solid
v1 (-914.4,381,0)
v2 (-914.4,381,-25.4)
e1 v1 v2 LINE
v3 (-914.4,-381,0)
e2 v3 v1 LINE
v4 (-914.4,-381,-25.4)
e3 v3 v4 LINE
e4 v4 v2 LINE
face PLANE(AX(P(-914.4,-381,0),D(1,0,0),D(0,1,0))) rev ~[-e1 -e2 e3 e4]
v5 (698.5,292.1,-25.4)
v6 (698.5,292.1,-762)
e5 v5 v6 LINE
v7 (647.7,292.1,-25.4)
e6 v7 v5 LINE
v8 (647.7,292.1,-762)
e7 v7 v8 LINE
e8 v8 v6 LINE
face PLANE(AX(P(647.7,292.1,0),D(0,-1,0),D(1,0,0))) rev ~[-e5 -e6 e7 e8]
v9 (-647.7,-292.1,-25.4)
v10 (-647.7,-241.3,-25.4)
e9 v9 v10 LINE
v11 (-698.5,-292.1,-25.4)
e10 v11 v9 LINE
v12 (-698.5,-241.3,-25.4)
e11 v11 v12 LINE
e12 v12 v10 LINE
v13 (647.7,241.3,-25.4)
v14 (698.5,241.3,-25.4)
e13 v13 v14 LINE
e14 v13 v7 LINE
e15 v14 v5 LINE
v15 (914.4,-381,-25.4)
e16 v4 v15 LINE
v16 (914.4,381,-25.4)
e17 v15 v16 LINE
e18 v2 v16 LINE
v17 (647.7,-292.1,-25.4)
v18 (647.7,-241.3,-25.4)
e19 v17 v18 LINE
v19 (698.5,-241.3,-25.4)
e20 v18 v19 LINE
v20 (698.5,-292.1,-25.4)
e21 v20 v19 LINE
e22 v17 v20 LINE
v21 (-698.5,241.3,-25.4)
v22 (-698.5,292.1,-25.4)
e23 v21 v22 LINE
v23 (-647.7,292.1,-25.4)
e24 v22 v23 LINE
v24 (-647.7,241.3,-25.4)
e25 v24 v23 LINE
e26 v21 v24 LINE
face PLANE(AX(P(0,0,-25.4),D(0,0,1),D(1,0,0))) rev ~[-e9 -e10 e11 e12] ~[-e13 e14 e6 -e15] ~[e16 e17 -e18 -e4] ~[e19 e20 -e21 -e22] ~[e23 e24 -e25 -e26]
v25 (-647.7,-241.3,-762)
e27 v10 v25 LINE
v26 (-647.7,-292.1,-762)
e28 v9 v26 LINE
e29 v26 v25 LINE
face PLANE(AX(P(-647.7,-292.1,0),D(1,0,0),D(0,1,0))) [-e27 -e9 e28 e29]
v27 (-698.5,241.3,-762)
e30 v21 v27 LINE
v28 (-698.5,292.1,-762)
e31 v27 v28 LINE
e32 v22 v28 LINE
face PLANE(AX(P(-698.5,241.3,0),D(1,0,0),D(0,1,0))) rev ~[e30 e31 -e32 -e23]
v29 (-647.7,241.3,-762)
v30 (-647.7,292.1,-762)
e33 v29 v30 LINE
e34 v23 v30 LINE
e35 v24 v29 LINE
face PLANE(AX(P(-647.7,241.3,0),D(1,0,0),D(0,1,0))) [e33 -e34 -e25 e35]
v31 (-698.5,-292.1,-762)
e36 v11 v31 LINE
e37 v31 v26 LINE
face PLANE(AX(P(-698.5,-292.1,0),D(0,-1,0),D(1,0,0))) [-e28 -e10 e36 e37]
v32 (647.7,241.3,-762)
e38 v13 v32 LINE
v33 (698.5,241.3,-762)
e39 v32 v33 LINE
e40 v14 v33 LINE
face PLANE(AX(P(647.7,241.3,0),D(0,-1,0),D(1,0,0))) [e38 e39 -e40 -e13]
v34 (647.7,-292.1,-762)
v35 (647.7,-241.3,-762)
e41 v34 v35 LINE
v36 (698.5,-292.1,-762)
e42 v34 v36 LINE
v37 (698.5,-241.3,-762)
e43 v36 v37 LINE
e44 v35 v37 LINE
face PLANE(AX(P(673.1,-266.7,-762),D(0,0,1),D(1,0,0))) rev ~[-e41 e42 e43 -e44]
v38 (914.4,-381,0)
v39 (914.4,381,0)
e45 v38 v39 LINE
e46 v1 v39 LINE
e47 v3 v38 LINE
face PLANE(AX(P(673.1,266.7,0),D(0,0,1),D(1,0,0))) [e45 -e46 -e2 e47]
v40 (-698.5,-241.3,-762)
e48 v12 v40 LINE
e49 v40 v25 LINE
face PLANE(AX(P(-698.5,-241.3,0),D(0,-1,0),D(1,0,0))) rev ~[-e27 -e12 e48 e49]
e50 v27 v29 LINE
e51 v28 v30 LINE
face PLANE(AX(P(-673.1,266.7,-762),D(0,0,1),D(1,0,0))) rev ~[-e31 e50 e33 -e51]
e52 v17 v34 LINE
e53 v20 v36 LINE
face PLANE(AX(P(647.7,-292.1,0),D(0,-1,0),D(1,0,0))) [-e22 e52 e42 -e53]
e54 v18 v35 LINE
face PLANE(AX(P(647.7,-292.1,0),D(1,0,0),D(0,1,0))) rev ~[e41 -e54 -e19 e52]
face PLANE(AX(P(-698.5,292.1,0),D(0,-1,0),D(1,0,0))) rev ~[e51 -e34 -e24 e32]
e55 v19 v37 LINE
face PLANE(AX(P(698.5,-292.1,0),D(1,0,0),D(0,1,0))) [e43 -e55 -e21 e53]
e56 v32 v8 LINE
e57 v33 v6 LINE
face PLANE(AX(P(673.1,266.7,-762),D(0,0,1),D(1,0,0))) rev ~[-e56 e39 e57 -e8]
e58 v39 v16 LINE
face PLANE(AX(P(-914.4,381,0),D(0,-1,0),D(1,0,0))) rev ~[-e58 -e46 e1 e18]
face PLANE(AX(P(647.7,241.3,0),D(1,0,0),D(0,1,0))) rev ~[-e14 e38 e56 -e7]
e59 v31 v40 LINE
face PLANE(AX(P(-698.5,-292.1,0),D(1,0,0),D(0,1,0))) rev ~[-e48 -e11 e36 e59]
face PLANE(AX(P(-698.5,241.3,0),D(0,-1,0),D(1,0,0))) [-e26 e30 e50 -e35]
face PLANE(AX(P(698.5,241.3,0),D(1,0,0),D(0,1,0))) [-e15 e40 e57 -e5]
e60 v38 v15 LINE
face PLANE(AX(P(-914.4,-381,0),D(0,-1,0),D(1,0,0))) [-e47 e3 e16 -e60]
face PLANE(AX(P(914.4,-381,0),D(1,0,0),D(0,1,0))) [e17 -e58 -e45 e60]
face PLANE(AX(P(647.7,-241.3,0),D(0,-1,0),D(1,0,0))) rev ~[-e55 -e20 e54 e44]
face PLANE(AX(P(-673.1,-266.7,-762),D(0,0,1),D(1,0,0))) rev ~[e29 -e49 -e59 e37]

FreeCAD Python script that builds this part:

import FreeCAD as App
import Part
import Sketcher
Q = App.Units.Quantity


def add_polygon(sketch, points):
    """Adds a closed chain of lines whose ends are joined by coincident constraints."""
    first, n = sketch.GeometryCount, len(points)
    for a, b in zip(points, points[1:] + points[:1]):
        sketch.addGeometry(Part.LineSegment(App.Vector(*a, 0), App.Vector(*b, 0)), False)
    for i in range(n):
        sketch.addConstraint(Sketcher.Constraint("Coincident", first + i, 2, first + (i + 1) % n, 1))

doc = App.newDocument("Part")
params = doc.addObject("Spreadsheet::Sheet", "Params")
for row, (alias, value) in enumerate([
    ("sketch1_width", "72 in"),
    ("sketch1_height", "30 in"),
    ("pad1_length", "1 in"),
    ("sketch2_width", "2 in"),
    ("pad2_length", "30 in"),
], start=1):
    params.set(f"A{row}", alias)
    params.set(f"B{row}", "=" + value)
    params.setAlias(f"B{row}", alias)

body = doc.addObject("PartDesign::Body", "Body")

# Sketch on XY plane
sketch1 = doc.addObject("Sketcher::SketchObject", "Sketch")
body.addObject(sketch1)
sketch1.AttachmentSupport = (doc.XY_Plane, [""])
sketch1.MapMode = "FlatFace"
add_polygon(sketch1, [(-914.4, 381), (-914.4, -381), (914.4, -381), (914.4, 381)])  # lines 0-3
sketch1.addConstraint([
    Sketcher.Constraint("Vertical", 0),
    Sketcher.Constraint("Horizontal", 1),
    Sketcher.Constraint("Vertical", 2),
    Sketcher.Constraint("Horizontal", 3),
    Sketcher.Constraint("Symmetric", 0, 2, 2, 2, -1, 1),
    Sketcher.Constraint("DistanceX", 1, 1, 1, 2, Q("72 in")),
    Sketcher.Constraint("DistanceY", 0, 2, 0, 1, Q("30 in")),
])
sketch1.setExpression("Constraints[9]", "Params.sketch1_width")
sketch1.setExpression("Constraints[10]", "Params.sketch1_height")
pad1 = doc.addObject("PartDesign::Pad", "Pad")
body.addObject(pad1)
pad1.Profile = sketch1
pad1.setExpression("Length", "Params.pad1_length")
pad1.Reversed = True

# Sketch on XY plane
sketch2 = doc.addObject("Sketcher::SketchObject", "Sketch001")
body.addObject(sketch2)
sketch2.AttachmentSupport = (doc.XY_Plane, [""])
sketch2.MapMode = "FlatFace"
add_polygon(sketch2, [(647.7, 292.1), (647.7, 241.3), (698.5, 241.3), (698.5, 292.1)])  # lines 0-3
add_polygon(sketch2, [(647.7, -241.3), (647.7, -292.1), (698.5, -292.1), (698.5, -241.3)])  # lines 4-7
add_polygon(sketch2, [(-698.5, -241.3), (-698.5, -292.1), (-647.7, -292.1), (-647.7, -241.3)])  # lines 8-11
add_polygon(sketch2, [(-698.5, 292.1), (-698.5, 241.3), (-647.7, 241.3), (-647.7, 292.1)])  # lines 12-15
sketch2.addConstraint([
    Sketcher.Constraint("Vertical", 0),
    Sketcher.Constraint("Horizontal", 1),
    Sketcher.Constraint("Vertical", 2),
    Sketcher.Constraint("Horizontal", 3),
    Sketcher.Constraint("Vertical", 4),
    Sketcher.Constraint("Horizontal", 5),
    Sketcher.Constraint("Vertical", 6),
    Sketcher.Constraint("Horizontal", 7),
    Sketcher.Constraint("Vertical", 8),
    Sketcher.Constraint("Horizontal", 9),
    Sketcher.Constraint("Vertical", 10),
    Sketcher.Constraint("Horizontal", 11),
    Sketcher.Constraint("Vertical", 12),
    Sketcher.Constraint("Horizontal", 13),
    Sketcher.Constraint("Vertical", 14),
    Sketcher.Constraint("Horizontal", 15),
    Sketcher.Constraint("Symmetric", 2, 2, 8, 2, -1, 1),
    Sketcher.Constraint("Symmetric", 0, 2, 10, 2, -1, 1),
    Sketcher.Constraint("Symmetric", 6, 2, 12, 2, -1, 1),
    Sketcher.Constraint("Symmetric", 4, 2, 14, 2, -1, 1),
    Sketcher.Constraint("Symmetric", 5, 2, 8, 2, -2),
    Sketcher.Constraint("Symmetric", 7, 2, 10, 2, -2),
    Sketcher.Constraint("Equal", 15, 0),
    Sketcher.Constraint("DistanceX", 1, 1, 1, 2, Q("2 in")),
    Sketcher.Constraint("DistanceY", 4, 2, 0, 2, Q("21 in")),
    Sketcher.Constraint("DistanceX", 8, 2, 4, 2, Q("53 in")),
])
sketch2.setExpression("Constraints[39]", "Params.sketch2_width")
pad2 = doc.addObject("PartDesign::Pad", "Pad001")
body.addObject(pad2)
pad2.Profile = sketch2
pad2.setExpression("Length", "Params.pad2_length")
pad2.Reversed = True

doc.recompute()
